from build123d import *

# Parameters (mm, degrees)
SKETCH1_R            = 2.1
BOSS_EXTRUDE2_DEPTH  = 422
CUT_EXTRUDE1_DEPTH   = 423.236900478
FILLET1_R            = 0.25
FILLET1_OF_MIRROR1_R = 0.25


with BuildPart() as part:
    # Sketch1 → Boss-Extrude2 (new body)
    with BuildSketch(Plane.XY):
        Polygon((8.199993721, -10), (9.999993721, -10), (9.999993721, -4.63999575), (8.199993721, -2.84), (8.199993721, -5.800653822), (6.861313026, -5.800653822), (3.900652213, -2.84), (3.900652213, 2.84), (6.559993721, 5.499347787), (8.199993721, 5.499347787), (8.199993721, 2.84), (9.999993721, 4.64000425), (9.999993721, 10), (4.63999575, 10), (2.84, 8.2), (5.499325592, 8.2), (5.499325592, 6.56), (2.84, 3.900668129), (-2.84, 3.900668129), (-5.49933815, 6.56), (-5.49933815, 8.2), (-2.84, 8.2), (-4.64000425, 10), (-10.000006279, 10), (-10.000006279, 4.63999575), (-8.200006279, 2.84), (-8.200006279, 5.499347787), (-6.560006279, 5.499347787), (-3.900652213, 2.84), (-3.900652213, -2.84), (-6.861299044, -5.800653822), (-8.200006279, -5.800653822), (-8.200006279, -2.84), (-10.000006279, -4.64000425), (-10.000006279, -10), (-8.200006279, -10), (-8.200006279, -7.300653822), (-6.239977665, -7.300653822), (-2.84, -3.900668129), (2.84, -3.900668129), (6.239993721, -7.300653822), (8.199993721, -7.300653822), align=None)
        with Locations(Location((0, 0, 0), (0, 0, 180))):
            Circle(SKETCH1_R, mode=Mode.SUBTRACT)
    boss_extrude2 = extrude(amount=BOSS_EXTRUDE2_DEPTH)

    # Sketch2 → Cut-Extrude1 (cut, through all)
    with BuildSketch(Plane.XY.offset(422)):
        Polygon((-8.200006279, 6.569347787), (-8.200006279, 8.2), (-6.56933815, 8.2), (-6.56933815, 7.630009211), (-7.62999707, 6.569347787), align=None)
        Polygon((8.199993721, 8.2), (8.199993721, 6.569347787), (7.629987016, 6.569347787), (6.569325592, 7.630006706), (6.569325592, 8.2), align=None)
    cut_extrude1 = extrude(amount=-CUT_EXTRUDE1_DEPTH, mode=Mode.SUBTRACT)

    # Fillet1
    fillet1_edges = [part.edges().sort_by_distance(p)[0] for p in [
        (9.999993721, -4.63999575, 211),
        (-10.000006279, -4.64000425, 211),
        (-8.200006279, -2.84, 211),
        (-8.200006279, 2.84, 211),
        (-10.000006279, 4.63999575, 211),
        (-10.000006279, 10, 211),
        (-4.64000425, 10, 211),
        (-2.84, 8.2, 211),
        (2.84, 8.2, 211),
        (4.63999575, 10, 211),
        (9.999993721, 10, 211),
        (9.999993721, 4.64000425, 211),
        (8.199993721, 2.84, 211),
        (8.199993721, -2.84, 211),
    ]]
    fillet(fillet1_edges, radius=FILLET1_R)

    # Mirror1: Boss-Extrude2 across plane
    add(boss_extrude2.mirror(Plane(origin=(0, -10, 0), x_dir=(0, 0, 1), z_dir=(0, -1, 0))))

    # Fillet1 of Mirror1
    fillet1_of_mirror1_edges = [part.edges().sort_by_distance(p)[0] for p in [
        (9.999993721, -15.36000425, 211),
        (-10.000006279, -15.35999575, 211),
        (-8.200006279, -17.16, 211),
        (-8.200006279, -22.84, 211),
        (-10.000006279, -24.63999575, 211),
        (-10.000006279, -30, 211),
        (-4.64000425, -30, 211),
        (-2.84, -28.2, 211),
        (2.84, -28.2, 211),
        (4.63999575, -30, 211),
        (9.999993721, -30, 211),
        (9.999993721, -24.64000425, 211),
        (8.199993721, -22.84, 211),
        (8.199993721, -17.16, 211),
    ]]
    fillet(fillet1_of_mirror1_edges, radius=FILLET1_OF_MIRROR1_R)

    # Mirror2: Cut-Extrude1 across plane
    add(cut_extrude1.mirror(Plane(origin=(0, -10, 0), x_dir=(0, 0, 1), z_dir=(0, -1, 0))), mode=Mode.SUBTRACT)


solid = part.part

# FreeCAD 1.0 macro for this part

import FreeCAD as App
import Part
import Sketcher

V = App.Vector
Q = App.Units.Quantity


def edges_at(feature, points):
    """Names of the edges that pass closest to the given points."""
    edges = feature.Shape.Edges
    near = lambda p: min(range(len(edges)), key=lambda i: edges[i].distToShape(Part.Vertex(*p))[0])
    return sorted({f"Edge{near(p) + 1}" for p in points})


def add_polygon(sketch, points):
    """Adds a closed chain of lines whose ends are joined by coincident constraints."""
    first, n = sketch.GeometryCount, len(points)
    for a, b in zip(points, points[1:] + points[:1]):
        sketch.addGeometry(Part.LineSegment(App.Vector(*a, 0), App.Vector(*b, 0)), False)
    for i in range(n):
        sketch.addConstraint(Sketcher.Constraint("Coincident", first + i, 2, first + (i + 1) % n, 1))

doc = App.newDocument("Part")
body = doc.addObject("PartDesign::Body", "Body")

sketch1 = body.newObject("Sketcher::SketchObject", "Sketch")
sketch1.AttachmentSupport = (doc.getObject("XY_Plane"), [""])
sketch1.MapMode = "FlatFace"
add_polygon(sketch1, [(8.199994, -10), (9.999994, -10), (9.999994, -4.639996), (8.199994, -2.84), (8.199994, -5.800654), (6.861313, -5.800654), (3.900652, -2.84), (3.900652, 2.84), (6.559994, 5.499348), (8.199994, 5.499348), (8.199994, 2.84), (9.999994, 4.640004), (9.999994, 10), (4.639996, 10), (2.84, 8.2), (5.499326, 8.2), (5.499326, 6.56), (2.84, 3.900668), (-2.84, 3.900668), (-5.499338, 6.56), (-5.499338, 8.2), (-2.84, 8.2), (-4.640004, 10), (-10.000006, 10), (-10.000006, 4.639996), (-8.200006, 2.84), (-8.200006, 5.499348), (-6.560006, 5.499348), (-3.900652, 2.84), (-3.900652, -2.84), (-6.861299, -5.800654), (-8.200006, -5.800654), (-8.200006, -2.84), (-10.000006, -4.640004), (-10.000006, -10), (-8.200006, -10), (-8.200006, -7.300654), (-6.239978, -7.300654), (-2.84, -3.900668), (2.84, -3.900668), (6.239994, -7.300654), (8.199994, -7.300654)])
sketch1.addGeometry(Part.Circle(V(0, 0, 0), V(0, 0, 1), 2.1), False)
sketch1.addConstraint([
    Sketcher.Constraint("Horizontal", 0),
    Sketcher.Constraint("Vertical", 1),
    Sketcher.Constraint("Vertical", 3),
    Sketcher.Constraint("Horizontal", 4),
    Sketcher.Constraint("Vertical", 6),
    Sketcher.Constraint("Horizontal", 8),
    Sketcher.Constraint("Vertical", 9),
    Sketcher.Constraint("Vertical", 11),
    Sketcher.Constraint("Horizontal", 12),
    Sketcher.Constraint("Horizontal", 14),
    Sketcher.Constraint("Vertical", 15),
    Sketcher.Constraint("Horizontal", 17),
    Sketcher.Constraint("Vertical", 19),
    Sketcher.Constraint("Horizontal", 20),
    Sketcher.Constraint("Horizontal", 22),
    Sketcher.Constraint("Vertical", 23),
    Sketcher.Constraint("Vertical", 25),
    Sketcher.Constraint("Horizontal", 26),
    Sketcher.Constraint("Vertical", 28),
    Sketcher.Constraint("Horizontal", 30),
    Sketcher.Constraint("Vertical", 31),
    Sketcher.Constraint("Vertical", 33),
    Sketcher.Constraint("Horizontal", 34),
    Sketcher.Constraint("Vertical", 35),
    Sketcher.Constraint("Horizontal", 36),
    Sketcher.Constraint("Horizontal", 38),
    Sketcher.Constraint("Horizontal", 40),
    Sketcher.Constraint("Vertical", 41),
    Sketcher.Constraint("Coincident", 42, 3, -1, 1),
    Sketcher.Constraint("Diameter", 42, Q("4.2 mm")),
    Sketcher.Constraint("DistanceX", 0, 1, 0, 2, Q("1.8 mm")),
    Sketcher.Constraint("DistanceX", 34, 1, 34, 2, Q("1.8 mm")),
    Sketcher.Constraint("DistanceY", 0, 2, -1, 1, Q("10 mm")),
    Sketcher.Constraint("DistanceY", -1, 1, 11, 2, Q("10 mm")),
    Sketcher.Constraint("DistanceY", -1, 1, 21, 2, Q("10 mm")),
    Sketcher.Constraint("DistanceY", 33, 2, -1, 1, Q("10 mm")),
    Sketcher.Constraint("DistanceX", 8, 1, 8, 2, Q("1.64 mm")),
    Sketcher.Constraint("DistanceX", 17, 2, 17, 1, Q("5.68 mm")),
    Sketcher.Constraint("DistanceX", 26, 1, 26, 2, Q("1.64 mm")),
    Sketcher.Constraint("DistanceX", 38, 1, 38, 2, Q("5.68 mm")),
    Sketcher.Constraint("DistanceX", 40, 1, 40, 2, Q("1.96 mm")),
    Sketcher.Constraint("DistanceY", 6, 1, 6, 2, Q("5.68 mm")),
    Sketcher.Constraint("DistanceY", 15, 2, 15, 1, Q("1.64 mm")),
    Sketcher.Constraint("DistanceY", 19, 1, 19, 2, Q("1.64 mm")),
    Sketcher.Constraint("DistanceY", 28, 2, 28, 1, Q("5.68 mm")),
    Sketcher.Constraint("DistanceY", -1, 1, 13, 2, Q("8.2 mm")),
    Sketcher.Constraint("DistanceY", -1, 1, 19, 2, Q("8.2 mm")),
    Sketcher.Constraint("DistanceX", 2, 2, 1, 2, Q("1.8 mm")),
    Sketcher.Constraint("DistanceX", 8, 2, 10, 2, Q("1.8 mm")),
    Sketcher.Constraint("DistanceX", 2, 2, 10, 2, Q("1.8 mm")),
    Sketcher.Constraint("DistanceX", 23, 2, 24, 2, Q("1.8 mm")),
    Sketcher.Constraint("DistanceX", 32, 2, 30, 2, Q("1.8 mm")),
    Sketcher.Constraint("DistanceX", 32, 2, 24, 2, Q("1.8 mm")),
    Sketcher.Constraint("DistanceY", 35, 2, 30, 2, Q("1.5 mm")),
    Sketcher.Constraint("DistanceY", 39, 2, 4, 2, Q("1.5 mm")),
    Sketcher.Constraint("DistanceY", 2, 2, -1, 1, Q("2.84 mm")),
    Sketcher.Constraint("DistanceY", 5, 2, -1, 1, Q("2.84 mm")),
    Sketcher.Constraint("DistanceY", -1, 1, 9, 2, Q("2.84 mm")),
    Sketcher.Constraint("DistanceX", -1, 1, 13, 2, Q("2.84 mm")),
    Sketcher.Constraint("DistanceX", -1, 1, 16, 2, Q("2.84 mm")),
    Sketcher.Constraint("DistanceX", 20, 2, -1, 1, Q("2.84 mm")),
    Sketcher.Constraint("DistanceY", -1, 1, 24, 2, Q("2.84 mm")),
    Sketcher.Constraint("DistanceY", -1, 1, 27, 2, Q("2.84 mm")),
    Sketcher.Constraint("DistanceY", 31, 2, -1, 1, Q("2.84 mm")),
    Sketcher.Constraint("DistanceX", 37, 2, -1, 1, Q("2.84 mm")),
    Sketcher.Constraint("Distance", 5, Q("4.187002 mm")),
    Sketcher.Constraint("Distance", 37, Q("4.8083 mm")),
    Sketcher.Constraint("DistanceX", 4, 2, 4, 1, Q("1.338681 mm")),
    Sketcher.Constraint("DistanceX", 20, 1, 20, 2, Q("2.659338 mm")),
    Sketcher.Constraint("DistanceX", 36, 1, 36, 2, Q("1.960029 mm")),
    Sketcher.Constraint("DistanceX", 29, 2, -1, 1, Q("6.861299 mm")),
    Sketcher.Constraint("Distance", 2, Q("2.545581 mm")),
    Sketcher.Constraint("Distance", 7, Q("3.760881 mm")),
    Sketcher.Constraint("Distance", 13, Q("2.545581 mm")),
    Sketcher.Constraint("Distance", 16, Q("3.760859 mm")),
    Sketcher.Constraint("Distance", 24, Q("2.545581 mm")),
    Sketcher.Constraint("Distance", 27, Q("3.76089 mm")),
    Sketcher.Constraint("Distance", 29, Q("4.186992 mm")),
    Sketcher.Constraint("Distance", 39, Q("4.808312 mm")),
    Sketcher.Constraint("DistanceX", 12, 2, 12, 1, Q("5.359998 mm")),
    Sketcher.Constraint("DistanceX", 14, 1, 14, 2, Q("2.659326 mm")),
    Sketcher.Constraint("DistanceX", 22, 2, 22, 1, Q("5.360002 mm")),
    Sketcher.Constraint("DistanceX", 30, 2, 30, 1, Q("1.338707 mm")),
    Sketcher.Constraint("DistanceY", 3, 2, 3, 1, Q("2.960654 mm")),
    Sketcher.Constraint("DistanceY", 11, 1, 11, 2, Q("5.359996 mm")),
    Sketcher.Constraint("DistanceY", 33, 2, 33, 1, Q("5.359996 mm")),
])
pad1 = body.newObject("PartDesign::Pad", "Pad")
pad1.Profile = sketch1
pad1.Length = 422

sketch2 = body.newObject("Sketcher::SketchObject", "Sketch001")
sketch2.AttachmentSupport = (doc.getObject("XY_Plane"), [""])
sketch2.MapMode = "FlatFace"
sketch2.AttachmentOffset = App.Placement(V(0, 0, 422), App.Rotation())
add_polygon(sketch2, [(-8.2, 8.2), (-8.2, 6.6), (-7.6, 6.6), (-6.6, 7.6), (-6.6, 8.2)])
add_polygon(sketch2, [(8.2, 6.6), (8.2, 8.2), (6.6, 8.2), (6.6, 7.6), (7.6, 6.6)])
sketch2.addConstraint([
    Sketcher.Constraint("Vertical", 0),
    Sketcher.Constraint("Horizontal", 1),
    Sketcher.Constraint("Vertical", 3),
    Sketcher.Constraint("Horizontal", 4),
    Sketcher.Constraint("Vertical", 5),
    Sketcher.Constraint("Horizontal", 6),
    Sketcher.Constraint("Vertical", 7),
    Sketcher.Constraint("Horizontal", 9),
    Sketcher.Constraint("Perpendicular", 2, 8),
    Sketcher.Constraint("Horizontal", 4, 2, 5, 2),
    Sketcher.Constraint("Horizontal", 1, 2, 8, 2),
    Sketcher.Constraint("Equal", 4, 6),
    Sketcher.Constraint("Equal", 2, 8),
    Sketcher.Constraint("Distance", 2, Q("1.5 mm")),
    Sketcher.Constraint("DistanceY", -1, 1, 3, 2, Q("8.2 mm")),
    Sketcher.Constraint("DistanceX", 4, 2, 5, 2, Q("16.4 mm")),
    Sketcher.Constraint("DistanceX", 1, 1, 1, 2, Q("0.570009 mm")),
    Sketcher.Constraint("DistanceX", 4, 2, 4, 1, Q("1.630668 mm")),
    Sketcher.Constraint("DistanceY", 3, 1, 3, 2, Q("0.569991 mm")),
    Sketcher.Constraint("DistanceX", 2, 2, -1, 1, Q("6.569338 mm")),
])
pocket1 = body.newObject("PartDesign::Pocket", "Pocket")
pocket1.Profile = sketch2
pocket1.Type = "ThroughAll"
doc.recompute()

fillet = body.newObject("PartDesign::Fillet", "Fillet")
fillet.Base = (pocket1, edges_at(pocket1, [
    (10, -4.64, 211),
    (-10, -4.64, 211),
    (-8.2, -2.84, 211),
    (-8.2, 2.84, 211),
    (-10, 4.64, 211),
    (-10, 10, 211),
    (-4.64, 10, 211),
    (-2.84, 8.2, 211),
    (2.84, 8.2, 211),
    (4.64, 10, 211),
    (10, 10, 211),
    (10, 4.64, 211),
    (8.2, 2.84, 211),
    (8.2, -2.84, 211),
]))
fillet.Radius = 0.25
doc.recompute()

datumplane = body.newObject("PartDesign::Plane", "DatumPlane")
datumplane.AttachmentSupport = (doc.getObject("XZ_Plane"), [""])
datumplane.MapMode = "FlatFace"
datumplane.AttachmentOffset = App.Placement(V(0, 0, 10), App.Rotation())
mirrored = body.newObject("PartDesign::Mirrored", "Mirrored")
mirrored.Originals = [pad1]
mirrored.MirrorPlane = (datumplane, [""])
body.Tip = mirrored
doc.recompute()

fillet2 = body.newObject("PartDesign::Fillet", "Fillet001")
fillet2.Base = (mirrored, edges_at(mirrored, [
    (10, -15.36, 211),
    (-10, -15.36, 211),
    (-8.2, -17.16, 211),
    (-8.2, -22.84, 211),
    (-10, -24.64, 211),
    (-10, -30, 211),
    (-4.64, -30, 211),
    (-2.84, -28.2, 211),
    (2.84, -28.2, 211),
    (4.64, -30, 211),
    (10, -30, 211),
    (10, -24.64, 211),
    (8.2, -22.84, 211),
    (8.2, -17.16, 211),
]))
fillet2.Radius = 0.25
doc.recompute()

datumplane2 = body.newObject("PartDesign::Plane", "DatumPlane001")
datumplane2.AttachmentSupport = (doc.getObject("XZ_Plane"), [""])
datumplane2.MapMode = "FlatFace"
datumplane2.AttachmentOffset = App.Placement(V(0, 0, 10), App.Rotation())
mirrored2 = body.newObject("PartDesign::Mirrored", "Mirrored001")
mirrored2.Originals = [pocket1]
mirrored2.MirrorPlane = (datumplane2, [""])
body.Tip = mirrored2

doc.recompute()
